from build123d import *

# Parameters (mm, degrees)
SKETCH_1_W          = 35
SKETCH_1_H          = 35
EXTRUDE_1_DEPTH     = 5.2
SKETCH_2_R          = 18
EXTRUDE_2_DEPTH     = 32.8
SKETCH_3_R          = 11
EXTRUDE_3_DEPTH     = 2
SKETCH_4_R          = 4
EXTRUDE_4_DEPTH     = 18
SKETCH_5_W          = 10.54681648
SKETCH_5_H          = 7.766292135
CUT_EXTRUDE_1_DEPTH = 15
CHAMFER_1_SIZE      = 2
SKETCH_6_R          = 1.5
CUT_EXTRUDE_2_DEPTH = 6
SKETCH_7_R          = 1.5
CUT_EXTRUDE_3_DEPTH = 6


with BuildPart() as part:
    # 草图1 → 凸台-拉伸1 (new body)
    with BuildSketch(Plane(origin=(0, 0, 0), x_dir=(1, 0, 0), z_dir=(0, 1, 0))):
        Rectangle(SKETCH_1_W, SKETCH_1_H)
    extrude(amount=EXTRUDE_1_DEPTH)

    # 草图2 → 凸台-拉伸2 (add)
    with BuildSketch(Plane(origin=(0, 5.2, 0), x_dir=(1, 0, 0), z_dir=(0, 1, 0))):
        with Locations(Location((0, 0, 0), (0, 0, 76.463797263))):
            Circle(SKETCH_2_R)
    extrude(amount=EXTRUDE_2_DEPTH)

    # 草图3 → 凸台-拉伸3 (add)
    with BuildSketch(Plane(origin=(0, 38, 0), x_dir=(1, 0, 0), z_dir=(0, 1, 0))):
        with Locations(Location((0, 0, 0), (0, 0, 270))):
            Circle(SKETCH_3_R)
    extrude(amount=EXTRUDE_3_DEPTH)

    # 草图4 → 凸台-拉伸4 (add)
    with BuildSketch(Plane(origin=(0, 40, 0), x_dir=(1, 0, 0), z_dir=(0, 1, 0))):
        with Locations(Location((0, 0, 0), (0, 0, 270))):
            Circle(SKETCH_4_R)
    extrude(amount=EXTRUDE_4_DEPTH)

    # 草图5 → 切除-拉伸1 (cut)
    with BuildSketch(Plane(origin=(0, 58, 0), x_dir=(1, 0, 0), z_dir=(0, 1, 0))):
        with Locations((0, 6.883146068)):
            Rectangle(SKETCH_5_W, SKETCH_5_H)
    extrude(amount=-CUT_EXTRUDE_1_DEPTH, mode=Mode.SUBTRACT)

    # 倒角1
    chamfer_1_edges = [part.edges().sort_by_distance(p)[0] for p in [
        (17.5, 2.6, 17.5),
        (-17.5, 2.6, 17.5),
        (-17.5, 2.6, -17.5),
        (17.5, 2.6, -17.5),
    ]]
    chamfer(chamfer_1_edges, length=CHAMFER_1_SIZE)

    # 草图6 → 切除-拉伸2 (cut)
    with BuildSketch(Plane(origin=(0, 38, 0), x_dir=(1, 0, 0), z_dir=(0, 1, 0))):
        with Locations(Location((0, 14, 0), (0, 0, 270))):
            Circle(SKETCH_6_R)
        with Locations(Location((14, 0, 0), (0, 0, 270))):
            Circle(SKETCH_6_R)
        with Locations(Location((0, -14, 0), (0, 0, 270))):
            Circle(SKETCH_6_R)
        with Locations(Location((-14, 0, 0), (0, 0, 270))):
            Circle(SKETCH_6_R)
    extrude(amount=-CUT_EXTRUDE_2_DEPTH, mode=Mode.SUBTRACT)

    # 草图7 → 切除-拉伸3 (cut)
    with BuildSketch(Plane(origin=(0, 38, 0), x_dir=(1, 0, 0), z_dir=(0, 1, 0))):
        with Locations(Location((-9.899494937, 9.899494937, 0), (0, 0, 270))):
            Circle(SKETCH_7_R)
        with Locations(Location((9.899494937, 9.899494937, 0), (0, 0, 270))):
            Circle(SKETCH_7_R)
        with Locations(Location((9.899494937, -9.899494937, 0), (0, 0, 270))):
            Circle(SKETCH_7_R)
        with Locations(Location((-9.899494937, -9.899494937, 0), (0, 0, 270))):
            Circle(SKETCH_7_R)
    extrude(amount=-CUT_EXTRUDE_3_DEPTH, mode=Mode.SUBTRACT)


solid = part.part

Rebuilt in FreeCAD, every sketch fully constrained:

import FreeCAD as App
import Part
import Sketcher
from FreeCAD import Vector


def edges_at(feature, points):
    """Names of the edges that pass closest to the given points."""
    edges = feature.Shape.Edges
    near = lambda p: min(range(len(edges)), key=lambda i: edges[i].distToShape(Part.Vertex(*p))[0])
    return sorted({f"Edge{near(p) + 1}" for p in points})


def add_polygon(sketch, points):
    """Adds a closed chain of lines whose ends are joined by coincident constraints."""
    first, n = sketch.GeometryCount, len(points)
    for a, b in zip(points, points[1:] + points[:1]):
        sketch.addGeometry(Part.LineSegment(App.Vector(*a, 0), App.Vector(*b, 0)), False)
    for i in range(n):
        sketch.addConstraint(Sketcher.Constraint("Coincident", first + i, 2, first + (i + 1) % n, 1))

doc = App.newDocument("Part")
body = doc.addObject("PartDesign::Body", "Body")

# Sketch on XZ plane
sketch1 = doc.addObject("Sketcher::SketchObject", "Sketch")
body.addObject(sketch1)
sketch1.AttachmentSupport = (doc.XZ_Plane, [""])
sketch1.MapMode = "FlatFace"
add_polygon(sketch1, [(-18, -18), (-18, 18), (18, 18), (18, -18)])  # lines 0-3
sketch1.addConstraint([
    Sketcher.Constraint("Vertical", 0),
    Sketcher.Constraint("Horizontal", 1),
    Sketcher.Constraint("Vertical", 2),
    Sketcher.Constraint("Horizontal", 3),
    Sketcher.Constraint("Symmetric", 0, 2, 2, 2, -1, 1),
    Sketcher.Constraint("Equal", 3, 0),
    Sketcher.Constraint("DistanceX", 1, 1, 1, 2, 35.0),
])
pad1 = doc.addObject("PartDesign::Pad", "Pad")
body.addObject(pad1)
pad1.Profile = sketch1
pad1.Length = 5.2
pad1.Reversed = True

# Sketch on XZ plane
sketch2 = doc.addObject("Sketcher::SketchObject", "Sketch001")
body.addObject(sketch2)
sketch2.AttachmentSupport = (doc.XZ_Plane, [""])
sketch2.MapMode = "FlatFace"
sketch2.AttachmentOffset = App.Placement(Vector(0, 0, -5.2), App.Rotation())
sketch2.addGeometry(Part.Circle(Vector(0, 0, 0), Vector(0, 0, 1), 18), False)
sketch2.addConstraint([
    Sketcher.Constraint("Coincident", 0, 3, -1, 1),
    Sketcher.Constraint("Diameter", 0, 36.0),
])
pad2 = doc.addObject("PartDesign::Pad", "Pad001")
body.addObject(pad2)
pad2.Profile = sketch2
pad2.Length = 32.8
pad2.Reversed = True

# Sketch on XZ plane
sketch3 = doc.addObject("Sketcher::SketchObject", "Sketch002")
body.addObject(sketch3)
sketch3.AttachmentSupport = (doc.XZ_Plane, [""])
sketch3.MapMode = "FlatFace"
sketch3.AttachmentOffset = App.Placement(Vector(0, 0, -38), App.Rotation())
sketch3.addGeometry(Part.Circle(Vector(0, 0, 0), Vector(0, 0, 1), 11), False)
sketch3.addConstraint([
    Sketcher.Constraint("Coincident", 0, 3, -1, 1),
    Sketcher.Constraint("Diameter", 0, 22.0),
])
pad3 = doc.addObject("PartDesign::Pad", "Pad002")
body.addObject(pad3)
pad3.Profile = sketch3
pad3.Length = 2
pad3.Reversed = True

# Sketch on XZ plane
sketch4 = doc.addObject("Sketcher::SketchObject", "Sketch003")
body.addObject(sketch4)
sketch4.AttachmentSupport = (doc.XZ_Plane, [""])
sketch4.MapMode = "FlatFace"
sketch4.AttachmentOffset = App.Placement(Vector(0, 0, -40), App.Rotation())
sketch4.addGeometry(Part.Circle(Vector(0, 0, 0), Vector(0, 0, 1), 4), False)
sketch4.addConstraint([
    Sketcher.Constraint("Coincident", 0, 3, -1, 1),
    Sketcher.Constraint("Diameter", 0, 8.0),
])
pad4 = doc.addObject("PartDesign::Pad", "Pad003")
body.addObject(pad4)
pad4.Profile = sketch4
pad4.Length = 18
pad4.Reversed = True

# Sketch on XZ plane
sketch5 = doc.addObject("Sketcher::SketchObject", "Sketch004")
body.addObject(sketch5)
sketch5.AttachmentSupport = (doc.XZ_Plane, [""])
sketch5.MapMode = "FlatFace"
sketch5.AttachmentOffset = App.Placement(Vector(0, 0, -58), App.Rotation())
add_polygon(sketch5, [(-5, -11), (-5, -3), (5, -3), (5, -11)])  # lines 0-3
sketch5.addConstraint([
    Sketcher.Constraint("Vertical", 0),
    Sketcher.Constraint("Horizontal", 1),
    Sketcher.Constraint("Vertical", 2),
    Sketcher.Constraint("Horizontal", 3),
    Sketcher.Constraint("DistanceY", 0, 2, -1, 1, 3.0),
    Sketcher.Constraint("DistanceX", 1, 1, 1, 2, 10.546816),
    Sketcher.Constraint("DistanceY", 0, 1, 0, 2, 7.766292),
    Sketcher.Constraint("DistanceX", 0, 2, -1, 1, 5.273408),
])
pocket1 = doc.addObject("PartDesign::Pocket", "Pocket")
body.addObject(pocket1)
pocket1.Profile = sketch5
pocket1.Length = 15
pocket1.Reversed = True
doc.recompute()

chamfer = doc.addObject("PartDesign::Chamfer", "Chamfer")
body.addObject(chamfer)
chamfer.Base = (pocket1, edges_at(pocket1, [
    (17.5, 2.6, 17.5),
    (-17.5, 2.6, 17.5),
    (-17.5, 2.6, -17.5),
    (17.5, 2.6, -17.5),
]))
chamfer.Size = 2

# Sketch on XZ plane
sketch6 = doc.addObject("Sketcher::SketchObject", "Sketch005")
body.addObject(sketch6)
sketch6.AttachmentSupport = (doc.XZ_Plane, [""])
sketch6.MapMode = "FlatFace"
sketch6.AttachmentOffset = App.Placement(Vector(0, 0, -38), App.Rotation())
sketch6.addGeometry([
    Part.Circle(Vector(0, -14, 0), Vector(0, 0, 1), 1.5),
    Part.Circle(Vector(14, 0, 0), Vector(0, 0, 1), 1.5),
    Part.Circle(Vector(0, 14, 0), Vector(0, 0, 1), 1.5),
    Part.Circle(Vector(-14, 0, 0), Vector(0, 0, 1), 1.5),
], False)
sketch6.addConstraint([
    Sketcher.Constraint("Equal", 0, 1),
    Sketcher.Constraint("Equal", 1, 2),
    Sketcher.Constraint("Equal", 2, 3),
    Sketcher.Constraint("Symmetric", 0, 3, 2, 3, -1, 1),
    Sketcher.Constraint("Symmetric", 1, 3, 3, 3, -1, 1),
    Sketcher.Constraint("PointOnObject", 0, 3, -2),
    Sketcher.Constraint("PointOnObject", 1, 3, -1),
    Sketcher.Constraint("Diameter", 0, 3.0),
    Sketcher.Constraint("DistanceY", 0, 3, -1, 1, 14.0),
    Sketcher.Constraint("DistanceX", -1, 1, 1, 3, 14.0),
])
pocket2 = doc.addObject("PartDesign::Pocket", "Pocket001")
body.addObject(pocket2)
pocket2.Profile = sketch6
pocket2.Length = 6
pocket2.Reversed = True

# Sketch on XZ plane
sketch7 = doc.addObject("Sketcher::SketchObject", "Sketch006")
body.addObject(sketch7)
sketch7.AttachmentSupport = (doc.XZ_Plane, [""])
sketch7.MapMode = "FlatFace"
sketch7.AttachmentOffset = App.Placement(Vector(0, 0, -38), App.Rotation())
sketch7.addGeometry([
    Part.Circle(Vector(-9.9, -9.9, 0), Vector(0, 0, 1), 1.5),
    Part.Circle(Vector(9.9, -9.9, 0), Vector(0, 0, 1), 1.5),
    Part.Circle(Vector(9.9, 9.9, 0), Vector(0, 0, 1), 1.5),
    Part.Circle(Vector(-9.9, 9.9, 0), Vector(0, 0, 1), 1.5),
], False)
sketch7.addConstraint([
    Sketcher.Constraint("Equal", 0, 1),
    Sketcher.Constraint("Equal", 1, 2),
    Sketcher.Constraint("Equal", 2, 3),
    Sketcher.Constraint("Symmetric", 0, 3, 2, 3, -1, 1),
    Sketcher.Constraint("Symmetric", 1, 3, 3, 3, -1, 1),
    Sketcher.Constraint("Symmetric", 0, 3, 1, 3, -2),
    Sketcher.Constraint("Diameter", 0, 3.0),
    Sketcher.Constraint("DistanceX", 0, 3, 1, 3, 19.79899),
    Sketcher.Constraint("DistanceY", 1, 3, 2, 3, 19.79899),
])
pocket3 = doc.addObject("PartDesign::Pocket", "Pocket002")
body.addObject(pocket3)
pocket3.Profile = sketch7
pocket3.Length = 6
pocket3.Reversed = True

doc.recompute()
